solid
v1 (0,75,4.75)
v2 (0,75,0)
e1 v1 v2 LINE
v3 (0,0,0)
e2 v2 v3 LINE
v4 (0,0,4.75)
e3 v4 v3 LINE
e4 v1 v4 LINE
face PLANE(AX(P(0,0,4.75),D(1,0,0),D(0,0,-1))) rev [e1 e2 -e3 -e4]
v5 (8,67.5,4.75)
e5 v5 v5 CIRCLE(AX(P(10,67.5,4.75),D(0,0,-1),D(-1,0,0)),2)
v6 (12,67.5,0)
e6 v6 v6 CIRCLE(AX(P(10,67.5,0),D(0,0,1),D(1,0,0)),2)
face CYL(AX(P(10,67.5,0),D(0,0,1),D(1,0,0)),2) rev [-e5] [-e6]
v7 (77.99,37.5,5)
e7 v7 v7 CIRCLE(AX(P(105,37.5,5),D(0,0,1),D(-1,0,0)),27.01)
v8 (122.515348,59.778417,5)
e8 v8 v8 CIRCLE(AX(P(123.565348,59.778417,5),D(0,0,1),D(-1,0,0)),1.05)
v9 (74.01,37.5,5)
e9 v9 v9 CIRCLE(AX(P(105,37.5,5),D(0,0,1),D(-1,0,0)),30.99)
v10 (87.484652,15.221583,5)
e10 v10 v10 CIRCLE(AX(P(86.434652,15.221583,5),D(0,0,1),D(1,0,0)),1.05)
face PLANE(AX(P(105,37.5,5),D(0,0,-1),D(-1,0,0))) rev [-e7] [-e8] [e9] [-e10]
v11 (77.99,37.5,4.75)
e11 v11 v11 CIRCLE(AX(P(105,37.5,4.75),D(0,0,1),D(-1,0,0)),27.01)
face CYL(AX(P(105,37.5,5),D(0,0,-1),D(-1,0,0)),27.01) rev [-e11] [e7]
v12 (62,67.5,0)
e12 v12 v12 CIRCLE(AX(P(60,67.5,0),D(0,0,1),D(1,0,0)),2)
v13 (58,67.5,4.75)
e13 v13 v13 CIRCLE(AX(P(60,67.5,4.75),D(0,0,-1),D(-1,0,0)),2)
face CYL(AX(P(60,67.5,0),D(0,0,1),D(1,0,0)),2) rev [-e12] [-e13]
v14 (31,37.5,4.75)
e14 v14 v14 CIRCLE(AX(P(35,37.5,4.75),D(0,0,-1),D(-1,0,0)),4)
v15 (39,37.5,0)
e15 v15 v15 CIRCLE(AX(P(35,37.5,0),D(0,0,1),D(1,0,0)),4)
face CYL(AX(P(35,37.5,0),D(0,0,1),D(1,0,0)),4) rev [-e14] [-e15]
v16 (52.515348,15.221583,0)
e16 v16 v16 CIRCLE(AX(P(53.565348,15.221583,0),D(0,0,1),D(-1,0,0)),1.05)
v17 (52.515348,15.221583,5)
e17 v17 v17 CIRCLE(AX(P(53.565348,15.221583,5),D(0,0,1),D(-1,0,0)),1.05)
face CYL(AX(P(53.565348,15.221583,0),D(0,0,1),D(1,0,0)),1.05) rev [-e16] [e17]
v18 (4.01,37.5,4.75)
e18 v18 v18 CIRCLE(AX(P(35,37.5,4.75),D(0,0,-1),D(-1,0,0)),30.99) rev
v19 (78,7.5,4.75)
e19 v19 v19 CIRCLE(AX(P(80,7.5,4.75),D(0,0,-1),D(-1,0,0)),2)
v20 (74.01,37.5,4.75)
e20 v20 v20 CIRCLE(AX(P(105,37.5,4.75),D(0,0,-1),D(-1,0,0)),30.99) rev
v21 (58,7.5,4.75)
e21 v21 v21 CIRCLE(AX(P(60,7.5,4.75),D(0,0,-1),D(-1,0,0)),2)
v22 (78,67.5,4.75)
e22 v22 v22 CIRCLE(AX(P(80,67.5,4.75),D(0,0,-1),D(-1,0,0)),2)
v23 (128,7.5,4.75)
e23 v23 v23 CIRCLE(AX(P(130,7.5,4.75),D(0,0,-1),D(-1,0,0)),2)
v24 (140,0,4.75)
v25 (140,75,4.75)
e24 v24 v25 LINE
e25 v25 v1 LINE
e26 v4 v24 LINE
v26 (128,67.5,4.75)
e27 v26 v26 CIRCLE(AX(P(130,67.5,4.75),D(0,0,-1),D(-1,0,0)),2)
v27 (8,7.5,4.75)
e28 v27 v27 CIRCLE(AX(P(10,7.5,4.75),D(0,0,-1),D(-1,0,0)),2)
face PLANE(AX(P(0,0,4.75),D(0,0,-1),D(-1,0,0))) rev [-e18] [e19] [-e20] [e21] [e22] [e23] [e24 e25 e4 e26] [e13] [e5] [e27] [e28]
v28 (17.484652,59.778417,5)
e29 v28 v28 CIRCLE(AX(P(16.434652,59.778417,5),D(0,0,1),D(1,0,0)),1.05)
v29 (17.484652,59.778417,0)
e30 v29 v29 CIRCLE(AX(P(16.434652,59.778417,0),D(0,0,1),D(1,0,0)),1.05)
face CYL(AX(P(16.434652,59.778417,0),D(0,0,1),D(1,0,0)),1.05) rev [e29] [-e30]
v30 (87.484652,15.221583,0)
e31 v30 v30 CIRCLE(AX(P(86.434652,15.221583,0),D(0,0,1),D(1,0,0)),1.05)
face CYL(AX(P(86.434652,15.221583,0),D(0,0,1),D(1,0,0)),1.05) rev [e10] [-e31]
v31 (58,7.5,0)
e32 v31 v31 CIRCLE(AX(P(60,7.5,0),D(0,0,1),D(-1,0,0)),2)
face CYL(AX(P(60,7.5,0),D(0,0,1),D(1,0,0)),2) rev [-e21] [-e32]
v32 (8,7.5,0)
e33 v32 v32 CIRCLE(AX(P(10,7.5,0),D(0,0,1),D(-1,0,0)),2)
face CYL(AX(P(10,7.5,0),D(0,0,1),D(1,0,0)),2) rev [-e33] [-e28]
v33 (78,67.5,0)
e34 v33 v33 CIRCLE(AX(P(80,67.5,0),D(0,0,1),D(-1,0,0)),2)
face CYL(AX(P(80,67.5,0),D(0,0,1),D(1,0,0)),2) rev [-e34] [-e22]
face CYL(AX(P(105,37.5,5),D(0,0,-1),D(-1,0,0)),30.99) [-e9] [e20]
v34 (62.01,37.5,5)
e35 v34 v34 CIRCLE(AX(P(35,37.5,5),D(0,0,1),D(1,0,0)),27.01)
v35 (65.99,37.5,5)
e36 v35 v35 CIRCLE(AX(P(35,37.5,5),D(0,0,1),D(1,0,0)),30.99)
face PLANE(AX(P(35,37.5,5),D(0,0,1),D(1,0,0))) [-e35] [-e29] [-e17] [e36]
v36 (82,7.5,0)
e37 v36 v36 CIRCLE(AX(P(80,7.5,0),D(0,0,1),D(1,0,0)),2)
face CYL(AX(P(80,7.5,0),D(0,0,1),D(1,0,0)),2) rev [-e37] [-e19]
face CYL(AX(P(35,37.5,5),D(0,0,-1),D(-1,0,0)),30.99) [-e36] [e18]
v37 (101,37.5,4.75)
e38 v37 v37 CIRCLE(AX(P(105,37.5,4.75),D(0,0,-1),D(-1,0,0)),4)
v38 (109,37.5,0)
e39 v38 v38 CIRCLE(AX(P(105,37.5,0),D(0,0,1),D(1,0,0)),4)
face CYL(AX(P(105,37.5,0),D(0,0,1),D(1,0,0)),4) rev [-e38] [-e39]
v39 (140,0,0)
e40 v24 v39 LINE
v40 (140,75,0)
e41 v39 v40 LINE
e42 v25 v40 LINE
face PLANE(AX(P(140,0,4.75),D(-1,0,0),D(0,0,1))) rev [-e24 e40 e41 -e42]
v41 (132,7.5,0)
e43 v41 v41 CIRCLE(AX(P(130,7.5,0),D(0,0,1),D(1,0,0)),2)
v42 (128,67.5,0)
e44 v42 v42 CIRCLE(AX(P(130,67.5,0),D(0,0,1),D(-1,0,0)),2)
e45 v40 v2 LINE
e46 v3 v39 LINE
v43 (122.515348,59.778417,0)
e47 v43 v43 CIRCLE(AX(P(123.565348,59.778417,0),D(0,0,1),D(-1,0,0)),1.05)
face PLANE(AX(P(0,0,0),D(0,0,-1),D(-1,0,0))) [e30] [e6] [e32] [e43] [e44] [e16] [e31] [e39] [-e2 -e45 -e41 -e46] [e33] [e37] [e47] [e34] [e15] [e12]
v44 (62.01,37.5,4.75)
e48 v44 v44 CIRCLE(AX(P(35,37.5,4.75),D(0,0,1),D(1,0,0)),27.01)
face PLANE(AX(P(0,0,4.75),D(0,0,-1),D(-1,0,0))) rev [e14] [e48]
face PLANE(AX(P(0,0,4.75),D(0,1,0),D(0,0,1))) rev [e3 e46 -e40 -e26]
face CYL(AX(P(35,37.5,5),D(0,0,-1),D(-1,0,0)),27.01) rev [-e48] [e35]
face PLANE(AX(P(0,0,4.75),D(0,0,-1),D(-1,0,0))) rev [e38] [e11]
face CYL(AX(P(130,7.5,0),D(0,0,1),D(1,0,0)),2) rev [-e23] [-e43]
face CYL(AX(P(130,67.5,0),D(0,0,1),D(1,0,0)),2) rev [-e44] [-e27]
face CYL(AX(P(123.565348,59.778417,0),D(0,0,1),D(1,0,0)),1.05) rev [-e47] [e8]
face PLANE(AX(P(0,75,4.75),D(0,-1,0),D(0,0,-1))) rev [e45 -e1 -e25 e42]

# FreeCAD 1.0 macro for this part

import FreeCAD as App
import Part
import Sketcher
from FreeCAD import Vector

doc = App.newDocument("Part")
body = doc.addObject("PartDesign::Body", "Body")

# Sketch on XY plane
sketch1 = doc.addObject("Sketcher::SketchObject", "Sketch")
body.addObject(sketch1)
sketch1.AttachmentSupport = (doc.XY_Plane, [""])
sketch1.MapMode = "FlatFace"
sketch1.addGeometry([
    Part.LineSegment(Vector(0, 75, 0), Vector(0, 0, 0)),
    Part.LineSegment(Vector(0, 0, 0), Vector(140, 0, 0)),
    Part.LineSegment(Vector(140, 0, 0), Vector(140, 75, 0)),
    Part.LineSegment(Vector(140, 75, 0), Vector(0, 75, 0)),
], False)
sketch1.addConstraint([
    Sketcher.Constraint("Coincident", 0, 2, 1, 1),
    Sketcher.Constraint("Coincident", 1, 2, 2, 1),
    Sketcher.Constraint("Coincident", 2, 2, 3, 1),
    Sketcher.Constraint("Coincident", 3, 2, 0, 1),
    Sketcher.Constraint("Vertical", 0),
    Sketcher.Constraint("Horizontal", 1),
    Sketcher.Constraint("Vertical", 2),
    Sketcher.Constraint("Horizontal", 3),
    Sketcher.Constraint("Coincident", 0, 2, -1, 1),
    Sketcher.Constraint("DistanceX", 1, 1, 1, 2, 140.0),
    Sketcher.Constraint("DistanceY", 0, 2, 0, 1, 75.0),
])
pad1 = doc.addObject("PartDesign::Pad", "Pad")
body.addObject(pad1)
pad1.Profile = sketch1
pad1.Length = 4.75

# Sketch on XY plane
sketch2 = doc.addObject("Sketcher::SketchObject", "Sketch001")
body.addObject(sketch2)
sketch2.AttachmentSupport = (doc.XY_Plane, [""])
sketch2.MapMode = "FlatFace"
sketch2.AttachmentOffset = App.Placement(Vector(0, 0, 4.75), App.Rotation())
sketch2.addGeometry([
    Part.Circle(Vector(35, 38, 0), Vector(0, 0, 1), 31),
    Part.Circle(Vector(35, 38, 0), Vector(0, 0, 1), 27),
    Part.Circle(Vector(105, 38, 0), Vector(0, 0, 1), 31),
    Part.Circle(Vector(105, 38, 0), Vector(0, 0, 1), 27),
], False)
sketch2.addConstraint([
    Sketcher.Constraint("Coincident", 1, 3, 0, 3),
    Sketcher.Constraint("Coincident", 3, 3, 2, 3),
    Sketcher.Constraint("Equal", 0, 2),
    Sketcher.Constraint("Equal", 1, 3),
    Sketcher.Constraint("Horizontal", 1, 3, 2, 3),
    Sketcher.Constraint("Diameter", 0, 61.98),
    Sketcher.Constraint("Diameter", 1, 54.02),
    Sketcher.Constraint("DistanceX", -1, 1, 0, 3, 35.0),
    Sketcher.Constraint("DistanceX", -1, 1, 2, 3, 105.0),
    Sketcher.Constraint("DistanceY", -1, 1, 0, 3, 37.5),
])
pad2 = doc.addObject("PartDesign::Pad", "Pad001")
body.addObject(pad2)
pad2.Profile = sketch2
pad2.Length = 0.25

# Sketch on XY plane
sketch3 = doc.addObject("Sketcher::SketchObject", "Sketch002")
body.addObject(sketch3)
sketch3.AttachmentSupport = (doc.XY_Plane, [""])
sketch3.MapMode = "FlatFace"
sketch3.AttachmentOffset = App.Placement(Vector(0, 0, 4.75), App.Rotation())
sketch3.addGeometry([
    Part.Circle(Vector(10, 67.5, 0), Vector(0, 0, 1), 2),  # 0
    Part.Circle(Vector(60, 67.5, 0), Vector(0, 0, 1), 2),  # 1
    Part.Circle(Vector(60, 7.5, 0), Vector(0, 0, 1), 2),  # 2
    Part.Circle(Vector(10, 7.5, 0), Vector(0, 0, 1), 2),  # 3
    Part.Circle(Vector(130, 7.5, 0), Vector(0, 0, 1), 2),  # 4
    Part.Circle(Vector(80, 7.5, 0), Vector(0, 0, 1), 2),  # 5
    Part.Circle(Vector(80, 67.5, 0), Vector(0, 0, 1), 2),  # 6
    Part.Circle(Vector(130, 67.5, 0), Vector(0, 0, 1), 2),  # 7
    Part.Circle(Vector(35, 37.5, 0), Vector(0, 0, 1), 4),  # 8
    Part.Circle(Vector(105, 37.5, 0), Vector(0, 0, 1), 4),  # 9
    Part.Circle(Vector(16.4, 59.8, 0), Vector(0, 0, 1), 1.1),  # 10
    Part.Circle(Vector(53.6, 15.2, 0), Vector(0, 0, 1), 1.1),  # 11
    Part.Circle(Vector(123.6, 59.8, 0), Vector(0, 0, 1), 1.1),  # 12
    Part.Circle(Vector(86.4, 15.2, 0), Vector(0, 0, 1), 1.1),  # 13
], False)
sketch3.addConstraint([
    Sketcher.Constraint("Equal", 0, 1),
    Sketcher.Constraint("Equal", 1, 2),
    Sketcher.Constraint("Equal", 2, 3),
    Sketcher.Constraint("Equal", 3, 4),
    Sketcher.Constraint("Equal", 4, 5),
    Sketcher.Constraint("Equal", 5, 6),
    Sketcher.Constraint("Equal", 6, 7),
    Sketcher.Constraint("Equal", 8, 9),
    Sketcher.Constraint("Equal", 10, 11),
    Sketcher.Constraint("Equal", 11, 12),
    Sketcher.Constraint("Equal", 12, 13),
    Sketcher.Constraint("Horizontal", 0, 3, 1, 3),
    Sketcher.Constraint("Horizontal", 2, 3, 3, 3),
    Sketcher.Constraint("Horizontal", 3, 3, 4, 3),
    Sketcher.Constraint("Horizontal", 4, 3, 5, 3),
    Sketcher.Constraint("Horizontal", 1, 3, 6, 3),
    Sketcher.Constraint("Horizontal", 6, 3, 7, 3),
    Sketcher.Constraint("Horizontal", 8, 3, 9, 3),
    Sketcher.Constraint("Horizontal", 10, 3, 12, 3),
    Sketcher.Constraint("Horizontal", 11, 3, 13, 3),
    Sketcher.Constraint("Vertical", 1, 3, 2, 3),
    Sketcher.Constraint("Vertical", 0, 3, 3, 3),
    Sketcher.Constraint("Vertical", 5, 3, 6, 3),
    Sketcher.Constraint("Vertical", 4, 3, 7, 3),
    Sketcher.Constraint("Diameter", 0, 4.0),
    Sketcher.Constraint("Diameter", 8, 8.0),
    Sketcher.Constraint("Diameter", 10, 2.1),
    Sketcher.Constraint("DistanceX", -1, 1, 0, 3, 10.0),
    Sketcher.Constraint("DistanceX", -1, 1, 1, 3, 60.0),
    Sketcher.Constraint("DistanceX", -1, 1, 4, 3, 130.0),
    Sketcher.Constraint("DistanceX", -1, 1, 5, 3, 80.0),
    Sketcher.Constraint("DistanceX", -1, 1, 8, 3, 35.0),
    Sketcher.Constraint("DistanceX", -1, 1, 9, 3, 105.0),
    Sketcher.Constraint("DistanceY", 2, 3, 1, 3, 60.0),
    Sketcher.Constraint("DistanceY", 8, 3, 0, 3, 30.0),
    Sketcher.Constraint("DistanceY", -1, 1, 0, 3, 67.5),
    Sketcher.Constraint("DistanceX", -1, 1, 10, 3, 16.434652),
    Sketcher.Constraint("DistanceY", -1, 1, 10, 3, 59.778417),
    Sketcher.Constraint("DistanceX", -1, 1, 11, 3, 53.565348),
    Sketcher.Constraint("DistanceY", -1, 1, 11, 3, 15.221583),
    Sketcher.Constraint("DistanceX", -1, 1, 12, 3, 123.565348),
    Sketcher.Constraint("DistanceX", -1, 1, 13, 3, 86.434652),
])
pocket1 = doc.addObject("PartDesign::Pocket", "Pocket")
body.addObject(pocket1)
pocket1.Profile = sketch3
pocket1.Type = "ThroughAll"
pocket1.Midplane = True

doc.recompute()
